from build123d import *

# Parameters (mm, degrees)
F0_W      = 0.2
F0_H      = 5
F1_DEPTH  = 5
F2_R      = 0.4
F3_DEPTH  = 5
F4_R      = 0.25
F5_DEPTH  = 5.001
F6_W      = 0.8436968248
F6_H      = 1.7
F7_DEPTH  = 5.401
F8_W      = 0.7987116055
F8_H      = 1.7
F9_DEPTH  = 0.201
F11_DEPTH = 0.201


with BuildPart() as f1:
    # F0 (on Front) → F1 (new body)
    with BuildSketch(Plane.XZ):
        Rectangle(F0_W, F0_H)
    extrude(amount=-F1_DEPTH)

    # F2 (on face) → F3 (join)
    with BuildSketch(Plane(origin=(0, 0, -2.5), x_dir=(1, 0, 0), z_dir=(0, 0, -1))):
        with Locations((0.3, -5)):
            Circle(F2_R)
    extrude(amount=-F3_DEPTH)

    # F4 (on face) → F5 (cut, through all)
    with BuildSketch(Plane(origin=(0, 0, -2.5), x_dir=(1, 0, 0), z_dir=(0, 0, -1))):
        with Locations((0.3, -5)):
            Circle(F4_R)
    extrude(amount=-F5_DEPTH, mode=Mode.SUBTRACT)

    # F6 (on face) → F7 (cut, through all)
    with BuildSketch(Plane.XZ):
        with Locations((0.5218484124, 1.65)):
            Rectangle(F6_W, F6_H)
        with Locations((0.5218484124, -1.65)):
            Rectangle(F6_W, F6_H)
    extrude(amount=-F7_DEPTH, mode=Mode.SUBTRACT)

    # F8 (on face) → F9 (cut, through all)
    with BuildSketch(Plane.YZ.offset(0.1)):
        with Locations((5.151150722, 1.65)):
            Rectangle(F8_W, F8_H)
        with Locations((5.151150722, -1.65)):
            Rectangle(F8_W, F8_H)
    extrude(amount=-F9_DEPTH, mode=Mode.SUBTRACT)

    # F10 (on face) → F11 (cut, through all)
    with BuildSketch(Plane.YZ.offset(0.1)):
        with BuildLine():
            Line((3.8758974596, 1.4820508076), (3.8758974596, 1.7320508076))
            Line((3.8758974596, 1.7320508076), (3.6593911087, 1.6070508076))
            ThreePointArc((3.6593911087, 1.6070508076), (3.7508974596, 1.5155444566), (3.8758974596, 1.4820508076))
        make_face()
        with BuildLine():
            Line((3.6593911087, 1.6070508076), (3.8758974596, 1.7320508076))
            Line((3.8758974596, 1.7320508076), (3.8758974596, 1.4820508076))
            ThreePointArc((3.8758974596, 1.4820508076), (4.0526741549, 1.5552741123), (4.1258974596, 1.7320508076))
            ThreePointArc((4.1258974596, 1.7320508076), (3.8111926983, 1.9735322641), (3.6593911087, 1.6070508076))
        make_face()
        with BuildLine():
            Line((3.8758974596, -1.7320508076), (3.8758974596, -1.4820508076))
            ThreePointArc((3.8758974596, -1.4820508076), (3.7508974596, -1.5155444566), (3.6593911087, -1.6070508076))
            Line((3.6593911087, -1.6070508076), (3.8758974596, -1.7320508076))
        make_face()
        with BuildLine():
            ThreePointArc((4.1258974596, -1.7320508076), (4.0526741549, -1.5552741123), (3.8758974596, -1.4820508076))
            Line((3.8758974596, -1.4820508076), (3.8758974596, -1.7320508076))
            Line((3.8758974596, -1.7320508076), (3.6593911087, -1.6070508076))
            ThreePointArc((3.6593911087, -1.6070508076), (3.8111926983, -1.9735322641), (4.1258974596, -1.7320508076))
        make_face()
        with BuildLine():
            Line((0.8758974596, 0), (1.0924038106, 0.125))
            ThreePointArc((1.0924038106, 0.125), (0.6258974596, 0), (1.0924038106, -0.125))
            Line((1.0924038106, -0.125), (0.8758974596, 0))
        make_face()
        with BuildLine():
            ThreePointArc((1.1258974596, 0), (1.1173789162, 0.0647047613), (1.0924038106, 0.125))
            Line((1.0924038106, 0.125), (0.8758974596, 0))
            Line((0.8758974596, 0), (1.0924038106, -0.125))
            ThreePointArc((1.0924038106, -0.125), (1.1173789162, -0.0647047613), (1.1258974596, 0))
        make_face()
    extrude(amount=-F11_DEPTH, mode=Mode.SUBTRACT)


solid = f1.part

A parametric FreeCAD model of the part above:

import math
import FreeCAD as App
import Part
import Sketcher

V = App.Vector

doc = App.newDocument("Part")
body = doc.addObject("PartDesign::Body", "Body")

# Sketch on XZ plane
sketch1 = body.newObject("Sketcher::SketchObject", "Sketch")
sketch1.AttachmentSupport = (doc.getObject("XZ_Plane"), [""])
sketch1.MapMode = "FlatFace"
sketch1.addGeometry([
    Part.LineSegment(V(-0.1, 2.5, 0), V(-0.1, -2.5, 0)),
    Part.LineSegment(V(-0.1, -2.5, 0), V(0.1, -2.5, 0)),
    Part.LineSegment(V(0.1, -2.5, 0), V(0.1, 2.5, 0)),
    Part.LineSegment(V(0.1, 2.5, 0), V(-0.1, 2.5, 0)),
], False)
sketch1.addConstraint([
    Sketcher.Constraint("Coincident", 0, 2, 1, 1),
    Sketcher.Constraint("Coincident", 1, 2, 2, 1),
    Sketcher.Constraint("Coincident", 2, 2, 3, 1),
    Sketcher.Constraint("Coincident", 3, 2, 0, 1),
    Sketcher.Constraint("Vertical", 0),
    Sketcher.Constraint("Horizontal", 1),
    Sketcher.Constraint("Vertical", 2),
    Sketcher.Constraint("Horizontal", 3),
    Sketcher.Constraint("Symmetric", 0, 2, 2, 2, -1, 1),
    Sketcher.Constraint("DistanceY", 0, 2, 0, 1, 5.0),
    Sketcher.Constraint("DistanceX", 1, 1, 1, 2, 0.2),
])
pad1 = body.newObject("PartDesign::Pad", "Pad")
pad1.Profile = sketch1
pad1.Length = 5
pad1.Reversed = True

# Sketch on XY plane
sketch2 = body.newObject("Sketcher::SketchObject", "Sketch001")
sketch2.AttachmentSupport = (doc.getObject("XY_Plane"), [""])
sketch2.MapMode = "FlatFace"
sketch2.AttachmentOffset = App.Placement(V(0, 0, -2.5), App.Rotation())
sketch2.addGeometry(Part.Circle(V(0.3, 5, 0), V(0, 0, 1), 0.4), False)
sketch2.addConstraint([
    Sketcher.Constraint("Diameter", 0, 0.8),
    Sketcher.Constraint("DistanceY", -1, 1, 0, 3, 5.0),
    Sketcher.Constraint("DistanceX", -1, 1, 0, 3, 0.3),
])
pad2 = body.newObject("PartDesign::Pad", "Pad001")
pad2.Profile = sketch2
pad2.Length = 5

# Sketch on XY plane
sketch3 = body.newObject("Sketcher::SketchObject", "Sketch002")
sketch3.AttachmentSupport = (doc.getObject("XY_Plane"), [""])
sketch3.MapMode = "FlatFace"
sketch3.AttachmentOffset = App.Placement(V(0, 0, -2.5), App.Rotation())
sketch3.addGeometry(Part.Circle(V(0.3, 5, 0), V(0, 0, 1), 0.25), False)
sketch3.addConstraint([
    Sketcher.Constraint("Diameter", 0, 0.5),
    Sketcher.Constraint("DistanceY", -1, 1, 0, 3, 5.0),
    Sketcher.Constraint("DistanceX", -1, 1, 0, 3, 0.3),
])
pocket1 = body.newObject("PartDesign::Pocket", "Pocket")
pocket1.Profile = sketch3
pocket1.Type = "ThroughAll"
pocket1.Reversed = True

# Sketch on XZ plane
sketch4 = body.newObject("Sketcher::SketchObject", "Sketch003")
sketch4.AttachmentSupport = (doc.getObject("XZ_Plane"), [""])
sketch4.MapMode = "FlatFace"
sketch4.addGeometry([
    Part.LineSegment(V(0.1, 2.5, 0), V(0.1, 0.8, 0)),  # 0
    Part.LineSegment(V(0.1, 0.8, 0), V(0.9, 0.8, 0)),  # 1
    Part.LineSegment(V(0.9, 0.8, 0), V(0.9, 2.5, 0)),  # 2
    Part.LineSegment(V(0.9, 2.5, 0), V(0.1, 2.5, 0)),  # 3
    Part.LineSegment(V(0.1, -0.8, 0), V(0.1, -2.5, 0)),  # 4
    Part.LineSegment(V(0.1, -2.5, 0), V(0.9, -2.5, 0)),  # 5
    Part.LineSegment(V(0.9, -2.5, 0), V(0.9, -0.8, 0)),  # 6
    Part.LineSegment(V(0.9, -0.8, 0), V(0.1, -0.8, 0)),  # 7
], False)
sketch4.addConstraint([
    Sketcher.Constraint("Coincident", 0, 2, 1, 1),
    Sketcher.Constraint("Coincident", 1, 2, 2, 1),
    Sketcher.Constraint("Coincident", 2, 2, 3, 1),
    Sketcher.Constraint("Coincident", 3, 2, 0, 1),
    Sketcher.Constraint("Coincident", 4, 2, 5, 1),
    Sketcher.Constraint("Coincident", 5, 2, 6, 1),
    Sketcher.Constraint("Coincident", 6, 2, 7, 1),
    Sketcher.Constraint("Coincident", 7, 2, 4, 1),
    Sketcher.Constraint("Vertical", 0),
    Sketcher.Constraint("Horizontal", 1),
    Sketcher.Constraint("Vertical", 2),
    Sketcher.Constraint("Horizontal", 3),
    Sketcher.Constraint("Vertical", 4),
    Sketcher.Constraint("Horizontal", 5),
    Sketcher.Constraint("Vertical", 6),
    Sketcher.Constraint("Horizontal", 7),
    Sketcher.Constraint("Symmetric", 3, 2, 4, 2, -1),
    Sketcher.Constraint("Symmetric", 1, 2, 6, 2, -1),
    Sketcher.Constraint("DistanceY", 0, 2, 0, 1, 1.7),
    Sketcher.Constraint("DistanceY", 4, 2, 3, 2, 5.0),
    Sketcher.Constraint("DistanceX", -1, 1, 0, 2, 0.1),
    Sketcher.Constraint("DistanceX", 1, 1, 1, 2, 0.843697),
])
pocket2 = body.newObject("PartDesign::Pocket", "Pocket001")
pocket2.Profile = sketch4
pocket2.Type = "ThroughAll"

# Sketch on YZ plane
sketch5 = body.newObject("Sketcher::SketchObject", "Sketch004")
sketch5.AttachmentSupport = (doc.getObject("YZ_Plane"), [""])
sketch5.MapMode = "FlatFace"
sketch5.AttachmentOffset = App.Placement(V(0, 0, 0.1), App.Rotation())
sketch5.addGeometry([
    Part.LineSegment(V(4.8, 2.5, 0), V(4.8, 0.8, 0)),  # 0
    Part.LineSegment(V(4.8, 0.8, 0), V(5.6, 0.8, 0)),  # 1
    Part.LineSegment(V(5.6, 0.8, 0), V(5.6, 2.5, 0)),  # 2
    Part.LineSegment(V(5.6, 2.5, 0), V(4.8, 2.5, 0)),  # 3
    Part.LineSegment(V(4.8, -0.8, 0), V(4.8, -2.5, 0)),  # 4
    Part.LineSegment(V(4.8, -2.5, 0), V(5.6, -2.5, 0)),  # 5
    Part.LineSegment(V(5.6, -2.5, 0), V(5.6, -0.8, 0)),  # 6
    Part.LineSegment(V(5.6, -0.8, 0), V(4.8, -0.8, 0)),  # 7
], False)
sketch5.addConstraint([
    Sketcher.Constraint("Coincident", 0, 2, 1, 1),
    Sketcher.Constraint("Coincident", 1, 2, 2, 1),
    Sketcher.Constraint("Coincident", 2, 2, 3, 1),
    Sketcher.Constraint("Coincident", 3, 2, 0, 1),
    Sketcher.Constraint("Coincident", 4, 2, 5, 1),
    Sketcher.Constraint("Coincident", 5, 2, 6, 1),
    Sketcher.Constraint("Coincident", 6, 2, 7, 1),
    Sketcher.Constraint("Coincident", 7, 2, 4, 1),
    Sketcher.Constraint("Vertical", 0),
    Sketcher.Constraint("Horizontal", 1),
    Sketcher.Constraint("Vertical", 2),
    Sketcher.Constraint("Horizontal", 3),
    Sketcher.Constraint("Vertical", 4),
    Sketcher.Constraint("Horizontal", 5),
    Sketcher.Constraint("Vertical", 6),
    Sketcher.Constraint("Horizontal", 7),
    Sketcher.Constraint("Symmetric", 3, 2, 4, 2, -1),
    Sketcher.Constraint("Symmetric", 1, 2, 6, 2, -1),
    Sketcher.Constraint("DistanceY", 0, 2, 0, 1, 1.7),
    Sketcher.Constraint("DistanceY", 4, 2, 3, 2, 5.0),
    Sketcher.Constraint("DistanceX", 1, 1, 1, 2, 0.798712),
    Sketcher.Constraint("DistanceX", -1, 1, 0, 2, 4.751795),
])
pocket3 = body.newObject("PartDesign::Pocket", "Pocket002")
pocket3.Profile = sketch5
pocket3.Type = "ThroughAll"

# Sketch on YZ plane
sketch6 = body.newObject("Sketcher::SketchObject", "Sketch005")
sketch6.AttachmentSupport = (doc.getObject("YZ_Plane"), [""])
sketch6.MapMode = "FlatFace"
sketch6.AttachmentOffset = App.Placement(V(0, 0, 0.1), App.Rotation())
sketch6.addGeometry([
    Part.ArcOfCircle(Part.Circle(V(3.88, 1.73, 0), V(0, 0, 1), 0.25), math.radians(-150), math.radians(-90)),  # 0
    Part.ArcOfCircle(Part.Circle(V(3.88, 1.73, 0), V(0, 0, 1), 0.25), math.radians(-90), math.radians(0)),  # 1
    Part.ArcOfCircle(Part.Circle(V(3.88, 1.73, 0), V(0, 0, 1), 0.25), math.radians(0), math.radians(210)),  # 2
    Part.ArcOfCircle(Part.Circle(V(3.88, -1.73, 0), V(0, 0, 1), 0.25), math.radians(90), math.radians(150)),  # 3
    Part.ArcOfCircle(Part.Circle(V(3.88, -1.73, 0), V(0, 0, 1), 0.25), math.radians(150), math.radians(360)),  # 4
    Part.ArcOfCircle(Part.Circle(V(3.88, -1.73, 0), V(0, 0, 1), 0.25), math.radians(0), math.radians(90)),  # 5
    Part.ArcOfCircle(Part.Circle(V(0.88, 0, 0), V(0, 0, 1), 0.25), math.radians(30), math.radians(330)),  # 6
    Part.ArcOfCircle(Part.Circle(V(0.88, 0, 0), V(0, 0, 1), 0.25), math.radians(-30), math.radians(0)),  # 7
    Part.ArcOfCircle(Part.Circle(V(0.88, 0, 0), V(0, 0, 1), 0.25), math.radians(0), math.radians(30)),  # 8
], False)
sketch6.addConstraint([
    Sketcher.Constraint("Tangent", 0, 2, 1, 1),
    Sketcher.Constraint("Tangent", 1, 2, 2, 1),
    Sketcher.Constraint("Tangent", 2, 2, 0, 1),
    Sketcher.Constraint("Tangent", 3, 2, 4, 1),
    Sketcher.Constraint("Tangent", 4, 2, 5, 1),
    Sketcher.Constraint("Tangent", 5, 2, 3, 1),
    Sketcher.Constraint("Tangent", 6, 2, 7, 1),
    Sketcher.Constraint("Tangent", 7, 2, 8, 1),
    Sketcher.Constraint("Tangent", 8, 2, 6, 1),
    Sketcher.Constraint("Equal", 2, 3),
    Sketcher.Constraint("Equal", 5, 6),
    Sketcher.Constraint("Symmetric", 0, 3, 3, 3, -1),
    Sketcher.Constraint("Symmetric", 6, 2, 8, 2, -1),
    Sketcher.Constraint("PointOnObject", 7, 2, -1),
    Sketcher.Constraint("Horizontal", 2, 3, 1, 2),
    Sketcher.Constraint("Horizontal", 5, 3, 4, 2),
    Sketcher.Constraint("Vertical", 5, 3, 0, 2),
    Sketcher.Constraint("Vertical", 2, 2, 3, 2),
    Sketcher.Constraint("Vertical", 0, 2, 5, 2),
    Sketcher.Constraint("Radius", 0, 0.25),
    Sketcher.Constraint("DistanceX", 6, 3, 0, 3, 3.0),
    Sketcher.Constraint("DistanceY", 6, 2, 8, 2, 0.25),
    Sketcher.Constraint("DistanceY", 2, 2, 0, 3, 0.125),
    Sketcher.Constraint("DistanceY", 3, 3, 0, 3, 3.464102),
    Sketcher.Constraint("DistanceX", -1, 1, 2, 2, 3.659391),
])
pocket4 = body.newObject("PartDesign::Pocket", "Pocket003")
pocket4.Profile = sketch6
pocket4.Type = "ThroughAll"

doc.recompute()
